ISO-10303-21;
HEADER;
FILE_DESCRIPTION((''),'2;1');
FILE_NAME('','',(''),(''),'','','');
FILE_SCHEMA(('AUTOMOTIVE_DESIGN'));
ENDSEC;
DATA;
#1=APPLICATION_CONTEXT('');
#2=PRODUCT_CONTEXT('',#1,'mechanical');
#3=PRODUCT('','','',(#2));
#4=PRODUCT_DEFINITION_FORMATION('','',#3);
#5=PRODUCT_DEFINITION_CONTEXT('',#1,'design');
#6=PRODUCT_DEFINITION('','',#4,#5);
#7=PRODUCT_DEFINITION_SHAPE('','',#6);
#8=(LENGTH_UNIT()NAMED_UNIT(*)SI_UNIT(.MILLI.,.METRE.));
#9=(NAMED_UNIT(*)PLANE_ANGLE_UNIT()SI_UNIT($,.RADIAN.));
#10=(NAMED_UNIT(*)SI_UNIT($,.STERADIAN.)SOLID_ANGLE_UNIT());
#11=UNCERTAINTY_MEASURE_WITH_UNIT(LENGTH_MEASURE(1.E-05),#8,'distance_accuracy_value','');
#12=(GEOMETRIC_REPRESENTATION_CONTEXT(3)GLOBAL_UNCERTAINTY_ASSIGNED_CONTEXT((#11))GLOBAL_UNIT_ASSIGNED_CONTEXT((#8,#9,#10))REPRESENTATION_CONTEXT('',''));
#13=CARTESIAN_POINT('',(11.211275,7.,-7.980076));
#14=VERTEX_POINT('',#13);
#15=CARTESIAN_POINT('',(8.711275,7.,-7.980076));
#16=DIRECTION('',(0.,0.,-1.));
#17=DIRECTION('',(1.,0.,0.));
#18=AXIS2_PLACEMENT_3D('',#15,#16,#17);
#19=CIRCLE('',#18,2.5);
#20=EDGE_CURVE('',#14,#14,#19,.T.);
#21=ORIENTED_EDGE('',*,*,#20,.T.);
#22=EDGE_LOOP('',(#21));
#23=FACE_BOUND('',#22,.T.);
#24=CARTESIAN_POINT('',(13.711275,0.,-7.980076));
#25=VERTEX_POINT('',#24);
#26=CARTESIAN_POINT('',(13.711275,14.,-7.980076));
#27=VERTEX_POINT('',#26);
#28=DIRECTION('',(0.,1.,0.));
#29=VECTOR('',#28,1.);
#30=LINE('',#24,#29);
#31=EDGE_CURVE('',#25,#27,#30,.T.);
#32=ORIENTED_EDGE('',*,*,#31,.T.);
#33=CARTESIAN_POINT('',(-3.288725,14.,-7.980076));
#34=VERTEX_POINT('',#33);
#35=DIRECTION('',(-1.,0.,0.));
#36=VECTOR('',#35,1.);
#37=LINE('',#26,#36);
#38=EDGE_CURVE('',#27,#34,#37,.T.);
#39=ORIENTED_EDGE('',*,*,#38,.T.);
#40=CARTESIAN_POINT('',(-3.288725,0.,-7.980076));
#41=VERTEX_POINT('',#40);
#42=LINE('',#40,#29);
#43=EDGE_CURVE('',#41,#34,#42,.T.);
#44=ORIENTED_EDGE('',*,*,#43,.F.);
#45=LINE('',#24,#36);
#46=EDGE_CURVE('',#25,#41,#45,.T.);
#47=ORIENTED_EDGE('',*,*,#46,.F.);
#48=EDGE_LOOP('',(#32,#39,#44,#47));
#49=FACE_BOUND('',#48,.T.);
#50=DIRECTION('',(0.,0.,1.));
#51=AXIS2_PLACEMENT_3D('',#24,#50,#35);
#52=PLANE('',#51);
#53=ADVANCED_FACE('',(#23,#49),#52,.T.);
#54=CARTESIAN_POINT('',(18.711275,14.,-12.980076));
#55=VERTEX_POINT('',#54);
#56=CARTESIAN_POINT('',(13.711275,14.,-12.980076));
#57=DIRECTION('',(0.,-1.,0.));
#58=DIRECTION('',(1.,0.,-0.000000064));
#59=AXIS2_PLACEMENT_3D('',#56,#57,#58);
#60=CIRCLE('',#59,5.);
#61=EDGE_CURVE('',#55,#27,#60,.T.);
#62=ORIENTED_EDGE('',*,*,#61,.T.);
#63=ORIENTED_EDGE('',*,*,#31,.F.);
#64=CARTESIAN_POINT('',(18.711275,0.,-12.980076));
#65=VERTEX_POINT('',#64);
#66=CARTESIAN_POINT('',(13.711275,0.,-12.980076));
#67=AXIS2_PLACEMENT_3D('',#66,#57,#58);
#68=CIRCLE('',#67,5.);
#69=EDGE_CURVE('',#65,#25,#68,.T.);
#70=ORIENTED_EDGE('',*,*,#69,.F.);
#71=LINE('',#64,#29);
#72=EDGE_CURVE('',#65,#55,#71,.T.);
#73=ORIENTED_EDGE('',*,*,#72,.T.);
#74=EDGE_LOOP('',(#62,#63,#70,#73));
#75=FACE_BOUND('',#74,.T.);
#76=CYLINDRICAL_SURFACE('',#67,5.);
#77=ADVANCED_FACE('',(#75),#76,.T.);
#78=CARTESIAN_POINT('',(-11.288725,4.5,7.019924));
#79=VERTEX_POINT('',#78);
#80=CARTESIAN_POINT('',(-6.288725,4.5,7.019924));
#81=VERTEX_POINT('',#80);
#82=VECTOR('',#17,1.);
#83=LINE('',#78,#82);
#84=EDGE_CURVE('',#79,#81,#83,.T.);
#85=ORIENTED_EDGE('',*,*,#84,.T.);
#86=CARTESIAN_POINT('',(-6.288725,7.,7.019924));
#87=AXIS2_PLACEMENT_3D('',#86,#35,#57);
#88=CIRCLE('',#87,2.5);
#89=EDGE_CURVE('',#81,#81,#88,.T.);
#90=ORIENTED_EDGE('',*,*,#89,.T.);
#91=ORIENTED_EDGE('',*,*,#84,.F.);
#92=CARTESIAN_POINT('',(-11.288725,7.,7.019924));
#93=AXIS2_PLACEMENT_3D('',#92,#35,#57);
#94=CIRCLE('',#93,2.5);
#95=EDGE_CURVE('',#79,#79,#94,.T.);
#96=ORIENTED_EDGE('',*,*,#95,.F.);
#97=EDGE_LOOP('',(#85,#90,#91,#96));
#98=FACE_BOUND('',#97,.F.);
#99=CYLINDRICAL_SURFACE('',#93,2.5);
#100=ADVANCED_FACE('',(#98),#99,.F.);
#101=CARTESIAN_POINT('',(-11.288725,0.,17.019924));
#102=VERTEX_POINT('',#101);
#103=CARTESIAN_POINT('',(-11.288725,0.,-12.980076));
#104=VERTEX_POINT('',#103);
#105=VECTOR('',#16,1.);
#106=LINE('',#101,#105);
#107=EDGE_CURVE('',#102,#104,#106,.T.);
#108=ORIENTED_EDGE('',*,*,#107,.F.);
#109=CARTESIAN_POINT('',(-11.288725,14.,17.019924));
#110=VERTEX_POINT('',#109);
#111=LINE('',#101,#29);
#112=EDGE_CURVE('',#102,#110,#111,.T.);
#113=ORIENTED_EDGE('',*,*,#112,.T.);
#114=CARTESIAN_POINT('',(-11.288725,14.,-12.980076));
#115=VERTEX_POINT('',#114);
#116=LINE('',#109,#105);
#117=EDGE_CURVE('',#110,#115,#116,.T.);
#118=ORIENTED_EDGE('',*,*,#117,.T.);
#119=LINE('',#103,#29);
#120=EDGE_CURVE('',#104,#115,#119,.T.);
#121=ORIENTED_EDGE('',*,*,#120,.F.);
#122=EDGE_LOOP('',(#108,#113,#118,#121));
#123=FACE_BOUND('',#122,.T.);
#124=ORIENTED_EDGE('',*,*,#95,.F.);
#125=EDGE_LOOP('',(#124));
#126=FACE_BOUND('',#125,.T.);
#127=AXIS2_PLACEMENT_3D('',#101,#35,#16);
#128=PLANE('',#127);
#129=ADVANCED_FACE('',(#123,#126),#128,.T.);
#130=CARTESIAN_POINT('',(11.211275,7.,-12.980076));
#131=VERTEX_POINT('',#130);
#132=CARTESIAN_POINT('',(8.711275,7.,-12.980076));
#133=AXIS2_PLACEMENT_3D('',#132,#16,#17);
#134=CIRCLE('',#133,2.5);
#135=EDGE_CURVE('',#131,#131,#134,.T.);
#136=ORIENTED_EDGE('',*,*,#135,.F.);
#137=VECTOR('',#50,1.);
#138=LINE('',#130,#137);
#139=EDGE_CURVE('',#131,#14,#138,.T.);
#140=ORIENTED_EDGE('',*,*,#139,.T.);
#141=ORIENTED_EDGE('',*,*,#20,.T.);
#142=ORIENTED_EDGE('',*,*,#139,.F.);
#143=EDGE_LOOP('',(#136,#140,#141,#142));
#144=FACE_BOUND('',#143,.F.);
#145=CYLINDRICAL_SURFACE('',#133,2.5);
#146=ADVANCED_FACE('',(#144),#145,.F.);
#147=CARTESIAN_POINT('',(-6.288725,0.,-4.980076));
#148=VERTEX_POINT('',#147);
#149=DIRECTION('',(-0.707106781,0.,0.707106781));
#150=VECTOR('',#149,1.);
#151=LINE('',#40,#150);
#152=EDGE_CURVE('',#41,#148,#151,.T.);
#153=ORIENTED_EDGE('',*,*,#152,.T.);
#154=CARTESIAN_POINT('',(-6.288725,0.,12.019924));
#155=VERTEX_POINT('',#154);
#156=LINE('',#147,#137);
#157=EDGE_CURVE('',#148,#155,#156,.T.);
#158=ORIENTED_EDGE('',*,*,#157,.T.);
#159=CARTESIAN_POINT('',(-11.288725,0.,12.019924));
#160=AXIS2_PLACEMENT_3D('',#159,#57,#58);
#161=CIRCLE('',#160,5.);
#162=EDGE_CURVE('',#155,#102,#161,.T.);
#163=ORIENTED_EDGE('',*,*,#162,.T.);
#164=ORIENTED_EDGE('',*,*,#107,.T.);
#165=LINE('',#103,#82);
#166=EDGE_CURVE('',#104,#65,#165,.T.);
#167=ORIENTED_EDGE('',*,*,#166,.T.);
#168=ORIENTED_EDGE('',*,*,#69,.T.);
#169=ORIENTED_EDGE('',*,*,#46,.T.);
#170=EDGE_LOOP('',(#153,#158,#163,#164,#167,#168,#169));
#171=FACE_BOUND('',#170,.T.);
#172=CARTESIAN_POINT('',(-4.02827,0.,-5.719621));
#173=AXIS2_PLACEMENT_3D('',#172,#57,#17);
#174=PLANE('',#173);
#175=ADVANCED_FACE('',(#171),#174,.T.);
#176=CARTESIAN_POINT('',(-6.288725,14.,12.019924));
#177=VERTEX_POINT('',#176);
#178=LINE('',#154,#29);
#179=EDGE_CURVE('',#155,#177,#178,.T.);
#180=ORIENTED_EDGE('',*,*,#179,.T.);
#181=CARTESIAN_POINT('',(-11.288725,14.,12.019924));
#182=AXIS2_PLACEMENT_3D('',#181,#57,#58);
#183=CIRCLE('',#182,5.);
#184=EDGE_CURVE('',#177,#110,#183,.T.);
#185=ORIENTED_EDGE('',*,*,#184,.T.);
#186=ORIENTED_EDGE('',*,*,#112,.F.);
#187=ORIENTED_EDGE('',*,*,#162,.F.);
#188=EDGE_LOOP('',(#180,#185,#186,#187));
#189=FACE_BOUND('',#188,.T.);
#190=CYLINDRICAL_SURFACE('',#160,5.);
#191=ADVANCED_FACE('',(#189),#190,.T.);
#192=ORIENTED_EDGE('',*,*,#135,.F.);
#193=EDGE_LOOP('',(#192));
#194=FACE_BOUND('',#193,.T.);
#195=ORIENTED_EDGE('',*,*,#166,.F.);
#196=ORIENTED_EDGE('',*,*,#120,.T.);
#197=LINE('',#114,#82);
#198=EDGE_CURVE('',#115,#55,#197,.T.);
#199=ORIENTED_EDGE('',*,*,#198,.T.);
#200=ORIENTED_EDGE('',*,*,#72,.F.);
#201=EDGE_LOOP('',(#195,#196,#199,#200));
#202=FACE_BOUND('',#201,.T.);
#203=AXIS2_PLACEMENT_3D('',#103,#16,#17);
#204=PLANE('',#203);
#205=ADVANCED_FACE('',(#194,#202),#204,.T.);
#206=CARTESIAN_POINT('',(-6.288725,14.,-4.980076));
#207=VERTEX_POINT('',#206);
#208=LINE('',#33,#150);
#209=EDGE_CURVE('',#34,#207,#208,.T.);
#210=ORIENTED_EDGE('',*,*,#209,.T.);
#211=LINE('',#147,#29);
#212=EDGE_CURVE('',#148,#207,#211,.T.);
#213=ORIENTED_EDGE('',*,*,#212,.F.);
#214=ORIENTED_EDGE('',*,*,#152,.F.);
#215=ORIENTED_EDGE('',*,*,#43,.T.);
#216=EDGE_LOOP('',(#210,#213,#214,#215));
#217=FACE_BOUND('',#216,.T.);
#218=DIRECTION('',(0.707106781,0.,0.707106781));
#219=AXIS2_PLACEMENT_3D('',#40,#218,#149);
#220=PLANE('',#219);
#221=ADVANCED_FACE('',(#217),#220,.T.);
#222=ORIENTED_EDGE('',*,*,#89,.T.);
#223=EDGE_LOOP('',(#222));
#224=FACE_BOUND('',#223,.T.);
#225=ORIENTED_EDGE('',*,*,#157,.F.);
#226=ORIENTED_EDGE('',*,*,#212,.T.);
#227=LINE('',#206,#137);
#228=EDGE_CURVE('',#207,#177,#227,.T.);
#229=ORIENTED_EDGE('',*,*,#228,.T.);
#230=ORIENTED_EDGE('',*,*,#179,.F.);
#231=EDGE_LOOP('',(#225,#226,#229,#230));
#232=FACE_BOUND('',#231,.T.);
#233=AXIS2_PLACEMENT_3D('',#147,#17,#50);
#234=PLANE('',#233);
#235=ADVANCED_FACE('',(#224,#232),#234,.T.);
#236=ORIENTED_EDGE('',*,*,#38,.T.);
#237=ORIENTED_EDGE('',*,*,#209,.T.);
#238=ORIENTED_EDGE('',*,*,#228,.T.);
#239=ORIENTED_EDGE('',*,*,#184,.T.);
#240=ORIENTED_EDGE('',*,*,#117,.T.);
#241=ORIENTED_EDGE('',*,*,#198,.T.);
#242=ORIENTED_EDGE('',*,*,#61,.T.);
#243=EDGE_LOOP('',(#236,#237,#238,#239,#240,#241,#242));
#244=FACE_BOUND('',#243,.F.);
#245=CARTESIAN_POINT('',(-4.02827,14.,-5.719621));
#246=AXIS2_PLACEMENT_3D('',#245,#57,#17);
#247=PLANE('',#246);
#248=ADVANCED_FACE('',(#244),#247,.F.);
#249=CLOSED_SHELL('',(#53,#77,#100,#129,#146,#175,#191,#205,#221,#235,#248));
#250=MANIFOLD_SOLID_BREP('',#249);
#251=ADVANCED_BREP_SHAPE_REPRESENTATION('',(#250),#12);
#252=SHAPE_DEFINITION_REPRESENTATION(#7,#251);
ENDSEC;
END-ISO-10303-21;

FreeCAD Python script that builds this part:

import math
import FreeCAD as App
import Part
import Sketcher
from FreeCAD import Vector
Q = App.Units.Quantity

doc = App.newDocument("Part")
body = doc.addObject("PartDesign::Body", "Body")

# Sketch on XZ plane
sketch1 = body.newObject("Sketcher::SketchObject", "Sketch")
sketch1.AttachmentSupport = (doc.getObject("XZ_Plane"), [""])
sketch1.MapMode = "FlatFace"
sketch1.addGeometry(Part.LineSegment(Vector(-11.288725, -12.980076, 0), Vector(18.711275, -12.980076, 0)), False)
sketch1.addGeometry(Part.ArcOfCircle(Part.Circle(Vector(13.711275, -12.980076, 0), Vector(0, 0, 1), 5), math.radians(-0.000004), math.radians(90.000004)), False)
sketch1.addGeometry(Part.LineSegment(Vector(13.711275, -7.980076, 0), Vector(-3.288725, -7.980076, 0)), False)
sketch1.addGeometry(Part.LineSegment(Vector(-3.288725, -7.980076, 0), Vector(-6.288725, -4.980076, 0)), False)
sketch1.addGeometry(Part.LineSegment(Vector(-6.288725, -4.980076, 0), Vector(-6.288725, 12.019924, 0)), False)
sketch1.addGeometry(Part.ArcOfCircle(Part.Circle(Vector(-11.288725, 12.019924, 0), Vector(0, 0, 1), 5), math.radians(-0.000004), math.radians(90.000004)), False)
sketch1.addGeometry(Part.LineSegment(Vector(-11.288725, 17.019924, 0), Vector(-11.288725, -12.980076, 0)), False)
sketch1.addConstraint(Sketcher.Constraint("Coincident", 0, 2, 1, 1))
sketch1.addConstraint(Sketcher.Constraint("Tangent", 1, 2, 2, 1))
sketch1.addConstraint(Sketcher.Constraint("Coincident", 2, 2, 3, 1))
sketch1.addConstraint(Sketcher.Constraint("Coincident", 3, 2, 4, 1))
sketch1.addConstraint(Sketcher.Constraint("Tangent", 4, 2, 5, 1))
sketch1.addConstraint(Sketcher.Constraint("Coincident", 5, 2, 6, 1))
sketch1.addConstraint(Sketcher.Constraint("Coincident", 6, 2, 0, 1))
sketch1.addConstraint(Sketcher.Constraint("Horizontal", 0))
sketch1.addConstraint(Sketcher.Constraint("Horizontal", 2))
sketch1.addConstraint(Sketcher.Constraint("Vertical", 4))
sketch1.addConstraint(Sketcher.Constraint("Vertical", 6))
sketch1.addConstraint(Sketcher.Constraint("Equal", 1, 5))
sketch1.addConstraint(Sketcher.Constraint("Horizontal", 1, 3, 0, 2))
sketch1.addConstraint(Sketcher.Constraint("Equal", 2, 4))
sketch1.addConstraint(Sketcher.Constraint("Equal", 0, 6))
sketch1.addConstraint(Sketcher.Constraint("Radius", 1, Q("5 mm")))
sketch1.addConstraint(Sketcher.Constraint("DistanceX", 0, 1, 0, 2, Q("30 mm")))
sketch1.addConstraint(Sketcher.Constraint("DistanceX", 2, 2, 2, 1, Q("17 mm")))
sketch1.addConstraint(Sketcher.Constraint("Angle", 3, Q("135 deg")))
sketch1.addConstraint(Sketcher.Constraint("DistanceX", -1, 1, 1, 3, Q("13.711275 mm")))
sketch1.addConstraint(Sketcher.Constraint("DistanceY", 1, 3, -1, 1, Q("12.980076 mm")))
pad1 = body.newObject("PartDesign::Pad", "Pad")
pad1.Profile = sketch1
pad1.Length = 14
pad1.Reversed = True

# Sketch on YZ plane
sketch2 = body.newObject("Sketcher::SketchObject", "Sketch001")
sketch2.AttachmentSupport = (doc.getObject("YZ_Plane"), [""])
sketch2.MapMode = "FlatFace"
sketch2.AttachmentOffset = App.Placement(Vector(0, 0, -11.288725), App.Rotation())
sketch2.addGeometry(Part.Circle(Vector(7, 7.019924, 0), Vector(0, 0, 1), 2.5), False)
sketch2.addConstraint(Sketcher.Constraint("Diameter", 0, Q("5 mm")))
sketch2.addConstraint(Sketcher.Constraint("DistanceX", -1, 1, 0, 3, Q("7 mm")))
sketch2.addConstraint(Sketcher.Constraint("DistanceY", -1, 1, 0, 3, Q("7.019924 mm")))
pocket1 = body.newObject("PartDesign::Pocket", "Pocket")
pocket1.Profile = sketch2
pocket1.Length = 5
pocket1.Reversed = True

# Sketch on XY plane
sketch3 = body.newObject("Sketcher::SketchObject", "Sketch002")
sketch3.AttachmentSupport = (doc.getObject("XY_Plane"), [""])
sketch3.MapMode = "FlatFace"
sketch3.AttachmentOffset = App.Placement(Vector(0, 0, -12.980076), App.Rotation())
sketch3.addGeometry(Part.Circle(Vector(8.711275, 7, 0), Vector(0, 0, 1), 2.5), False)
sketch3.addConstraint(Sketcher.Constraint("Diameter", 0, Q("5 mm")))
sketch3.addConstraint(Sketcher.Constraint("DistanceY", -1, 1, 0, 3, Q("7 mm")))
sketch3.addConstraint(Sketcher.Constraint("DistanceX", -1, 1, 0, 3, Q("8.711275 mm")))
pocket2 = body.newObject("PartDesign::Pocket", "Pocket001")
pocket2.Profile = sketch3
pocket2.Length = 5
pocket2.Reversed = True

doc.recompute()
